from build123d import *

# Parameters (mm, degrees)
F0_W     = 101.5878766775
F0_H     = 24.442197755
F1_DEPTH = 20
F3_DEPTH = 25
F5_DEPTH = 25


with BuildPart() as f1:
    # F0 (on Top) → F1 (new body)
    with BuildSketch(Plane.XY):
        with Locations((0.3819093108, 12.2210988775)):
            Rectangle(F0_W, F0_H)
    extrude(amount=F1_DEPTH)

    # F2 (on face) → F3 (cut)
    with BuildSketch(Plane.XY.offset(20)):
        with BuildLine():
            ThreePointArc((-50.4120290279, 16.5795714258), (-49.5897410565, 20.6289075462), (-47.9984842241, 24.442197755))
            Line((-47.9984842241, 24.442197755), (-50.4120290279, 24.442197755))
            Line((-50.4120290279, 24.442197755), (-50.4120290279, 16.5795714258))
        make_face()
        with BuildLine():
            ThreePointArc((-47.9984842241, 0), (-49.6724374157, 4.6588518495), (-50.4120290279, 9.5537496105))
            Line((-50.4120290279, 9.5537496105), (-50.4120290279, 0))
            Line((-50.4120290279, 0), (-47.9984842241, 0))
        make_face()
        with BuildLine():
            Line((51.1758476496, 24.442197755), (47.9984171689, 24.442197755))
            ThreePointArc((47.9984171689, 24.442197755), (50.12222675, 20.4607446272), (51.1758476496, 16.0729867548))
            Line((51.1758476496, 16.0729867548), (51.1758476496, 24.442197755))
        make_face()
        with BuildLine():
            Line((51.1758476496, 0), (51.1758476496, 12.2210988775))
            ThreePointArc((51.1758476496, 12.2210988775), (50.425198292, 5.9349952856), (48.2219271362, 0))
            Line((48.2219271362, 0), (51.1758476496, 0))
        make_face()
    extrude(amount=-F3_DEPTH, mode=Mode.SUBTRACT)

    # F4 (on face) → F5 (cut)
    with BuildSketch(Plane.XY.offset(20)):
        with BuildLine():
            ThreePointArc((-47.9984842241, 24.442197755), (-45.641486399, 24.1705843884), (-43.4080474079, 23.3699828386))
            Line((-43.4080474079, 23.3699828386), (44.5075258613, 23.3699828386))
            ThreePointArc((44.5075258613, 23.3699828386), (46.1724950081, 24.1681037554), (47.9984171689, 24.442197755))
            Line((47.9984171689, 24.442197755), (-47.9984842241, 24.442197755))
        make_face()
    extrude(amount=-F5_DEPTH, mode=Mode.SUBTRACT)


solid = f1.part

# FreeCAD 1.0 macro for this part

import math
import FreeCAD as App
import Part
import Sketcher
Q = App.Units.Quantity

doc = App.newDocument("Part")
params = doc.addObject("Spreadsheet::Sheet", "Params")
for row, (alias, value) in enumerate([
    ("pad1_length", "20 mm"),
    ("pocket1_length", "25 mm"),
    ("pocket2_length", "25 mm"),
], start=1):
    params.set(f"A{row}", alias)
    params.set(f"B{row}", "=" + value)
    params.setAlias(f"B{row}", alias)

body = doc.addObject("PartDesign::Body", "Body")

sketch1 = body.newObject("Sketcher::SketchObject", "Sketch")
sketch1.AttachmentSupport = (doc.getObject("XY_Plane"), [""])
sketch1.MapMode = "FlatFace"
sketch1.addGeometry([
    Part.LineSegment(App.Vector(-50, 24, 0), App.Vector(-50, 0, 0)),
    Part.LineSegment(App.Vector(-50, 0, 0), App.Vector(51, 0, 0)),
    Part.LineSegment(App.Vector(51, 0, 0), App.Vector(51, 24, 0)),
    Part.LineSegment(App.Vector(51, 24, 0), App.Vector(-50, 24, 0)),
], False)
sketch1.addConstraint([
    Sketcher.Constraint("Coincident", 0, 2, 1, 1),
    Sketcher.Constraint("Coincident", 1, 2, 2, 1),
    Sketcher.Constraint("Coincident", 2, 2, 3, 1),
    Sketcher.Constraint("Coincident", 3, 2, 0, 1),
    Sketcher.Constraint("Vertical", 0),
    Sketcher.Constraint("Horizontal", 1),
    Sketcher.Constraint("Vertical", 2),
    Sketcher.Constraint("Horizontal", 3),
    Sketcher.Constraint("PointOnObject", 0, 2, -1),
    Sketcher.Constraint("DistanceX", 1, 1, 1, 2, Q("101.587877 mm")),
    Sketcher.Constraint("DistanceY", 0, 2, 0, 1, Q("24.442198 mm")),
    Sketcher.Constraint("DistanceX", 0, 2, -1, 1, Q("50.412029 mm")),
])
pad1 = body.newObject("PartDesign::Pad", "Pad")
pad1.Profile = sketch1
pad1.setExpression("Length", "Params.pad1_length")

sketch2 = body.newObject("Sketcher::SketchObject", "Sketch001")
sketch2.AttachmentSupport = (doc.getObject("XY_Plane"), [""])
sketch2.MapMode = "FlatFace"
sketch2.AttachmentOffset = App.Placement(App.Vector(0, 0, 20), App.Rotation())
sketch2.addGeometry([
    Part.ArcOfCircle(Part.Circle(App.Vector(-29.3, 14.4, 0), App.Vector(0, 0, 1), 21.2), math.radians(152), math.radians(174)),
    Part.LineSegment(App.Vector(-48, 24.4, 0), App.Vector(-50.4, 24.4, 0)),
    Part.LineSegment(App.Vector(-50.4, 24.4, 0), App.Vector(-50.4, 16.6, 0)),
    Part.ArcOfCircle(Part.Circle(App.Vector(-25, 10.9, 0), App.Vector(0, 0, 1), 25.4), math.radians(-177), math.radians(-155)),
    Part.LineSegment(App.Vector(-50.4, 9.6, 0), App.Vector(-50.4, 0, 0)),
    Part.LineSegment(App.Vector(-50.4, 0, 0), App.Vector(-48, 0, 0)),
    Part.LineSegment(App.Vector(51.2, 24.4, 0), App.Vector(48, 24.4, 0)),
    Part.ArcOfCircle(Part.Circle(App.Vector(33.5, 14.1, 0), App.Vector(0, 0, 1), 17.8), math.radians(6), math.radians(35)),
    Part.LineSegment(App.Vector(51.2, 16.1, 0), App.Vector(51.2, 24.4, 0)),
    Part.LineSegment(App.Vector(51.2, 0, 0), App.Vector(51.2, 12.2, 0)),
    Part.ArcOfCircle(Part.Circle(App.Vector(24.4, 12.2, 0), App.Vector(0, 0, 1), 26.8), math.radians(-27), math.radians(0)),
    Part.LineSegment(App.Vector(48.2, 0, 0), App.Vector(51.2, 0, 0)),
], False)
sketch2.addConstraint([
    Sketcher.Constraint("Coincident", 0, 1, 1, 1),
    Sketcher.Constraint("Coincident", 1, 2, 2, 1),
    Sketcher.Constraint("Coincident", 2, 2, 0, 2),
    Sketcher.Constraint("Coincident", 3, 1, 4, 1),
    Sketcher.Constraint("Coincident", 4, 2, 5, 1),
    Sketcher.Constraint("Coincident", 5, 2, 3, 2),
    Sketcher.Constraint("Coincident", 6, 2, 7, 2),
    Sketcher.Constraint("Coincident", 7, 1, 8, 1),
    Sketcher.Constraint("Coincident", 8, 2, 6, 1),
    Sketcher.Constraint("Coincident", 9, 2, 10, 2),
    Sketcher.Constraint("Coincident", 10, 1, 11, 1),
    Sketcher.Constraint("Coincident", 11, 2, 9, 1),
    Sketcher.Constraint("Horizontal", 1),
    Sketcher.Constraint("Vertical", 2),
    Sketcher.Constraint("Vertical", 4),
    Sketcher.Constraint("Horizontal", 5),
    Sketcher.Constraint("Horizontal", 6),
    Sketcher.Constraint("Vertical", 8),
    Sketcher.Constraint("Vertical", 9),
    Sketcher.Constraint("Horizontal", 11),
    Sketcher.Constraint("PointOnObject", 4, 2, -1),
    Sketcher.Constraint("PointOnObject", 10, 1, -1),
    Sketcher.Constraint("Horizontal", 1, 2, 6, 2),
    Sketcher.Constraint("Vertical", 2, 2, 3, 1),
    Sketcher.Constraint("Vertical", 0, 1, 5, 2),
    Sketcher.Constraint("Vertical", 8, 2, 9, 2),
    Sketcher.Constraint("Radius", 3, Q("25.429702 mm")),
    Sketcher.Constraint("Radius", 7, Q("17.788201 mm")),
    Sketcher.Constraint("Radius", 10, Q("26.818238 mm")),
    Sketcher.Constraint("DistanceY", 9, 1, 9, 2, Q("12.221099 mm")),
    Sketcher.Constraint("Radius", 0, Q("21.225333 mm")),
    Sketcher.Constraint("DistanceX", 6, 2, 6, 1, Q("3.17743 mm")),
    Sketcher.Constraint("DistanceX", 11, 1, 11, 2, Q("2.953921 mm")),
    Sketcher.Constraint("DistanceY", 4, 2, 4, 1, Q("9.55375 mm")),
    Sketcher.Constraint("DistanceY", 8, 1, 8, 2, Q("8.369211 mm")),
    Sketcher.Constraint("DistanceX", 0, 1, 7, 3, Q("81.4907 mm")),
    Sketcher.Constraint("DistanceY", 9, 2, 8, 2, Q("12.221099 mm")),
    Sketcher.Constraint("DistanceX", 1, 2, 1, 1, Q("2.413545 mm")),
    Sketcher.Constraint("DistanceY", 2, 2, 2, 1, Q("7.862626 mm")),
    Sketcher.Constraint("DistanceX", 1, 2, -1, 1, Q("50.412029 mm")),
])
pocket1 = body.newObject("PartDesign::Pocket", "Pocket")
pocket1.Profile = sketch2
pocket1.setExpression("Length", "Params.pocket1_length")

sketch3 = body.newObject("Sketcher::SketchObject", "Sketch002")
sketch3.AttachmentSupport = (doc.getObject("XY_Plane"), [""])
sketch3.MapMode = "FlatFace"
sketch3.AttachmentOffset = App.Placement(App.Vector(0, 0, 20), App.Rotation())
sketch3.addGeometry([
    Part.ArcOfCircle(Part.Circle(App.Vector(-48, 14.1, 0), App.Vector(0, 0, 1), 10.4), math.radians(64), math.radians(90)),
    Part.LineSegment(App.Vector(-43.4, 23.4, 0), App.Vector(44.5, 23.4, 0)),
    Part.ArcOfCircle(Part.Circle(App.Vector(48, 18.2, 0), App.Vector(0, 0, 1), 6.2), math.radians(90), math.radians(124)),
    Part.LineSegment(App.Vector(48, 24.4, 0), App.Vector(-48, 24.4, 0)),
], False)
sketch3.addConstraint([
    Sketcher.Constraint("Coincident", 0, 1, 1, 1),
    Sketcher.Constraint("Coincident", 1, 2, 2, 2),
    Sketcher.Constraint("Tangent", 2, 1, 3, 1),
    Sketcher.Constraint("Tangent", 3, 2, 0, 2),
    Sketcher.Constraint("Horizontal", 1),
    Sketcher.Constraint("Horizontal", 3),
    Sketcher.Constraint("DistanceX", 3, 2, 3, 1, Q("95.996901 mm")),
    Sketcher.Constraint("Radius", 0, Q("10.362547 mm")),
    Sketcher.Constraint("Radius", 2, Q("6.218887 mm")),
    Sketcher.Constraint("DistanceX", 1, 1, 1, 2, Q("87.915573 mm")),
    Sketcher.Constraint("DistanceY", -1, 1, 0, 3, Q("14.079651 mm")),
    Sketcher.Constraint("DistanceX", 0, 3, -1, 1, Q("47.998484 mm")),
])
pocket2 = body.newObject("PartDesign::Pocket", "Pocket001")
pocket2.Profile = sketch3
pocket2.setExpression("Length", "Params.pocket2_length")

doc.recompute()
